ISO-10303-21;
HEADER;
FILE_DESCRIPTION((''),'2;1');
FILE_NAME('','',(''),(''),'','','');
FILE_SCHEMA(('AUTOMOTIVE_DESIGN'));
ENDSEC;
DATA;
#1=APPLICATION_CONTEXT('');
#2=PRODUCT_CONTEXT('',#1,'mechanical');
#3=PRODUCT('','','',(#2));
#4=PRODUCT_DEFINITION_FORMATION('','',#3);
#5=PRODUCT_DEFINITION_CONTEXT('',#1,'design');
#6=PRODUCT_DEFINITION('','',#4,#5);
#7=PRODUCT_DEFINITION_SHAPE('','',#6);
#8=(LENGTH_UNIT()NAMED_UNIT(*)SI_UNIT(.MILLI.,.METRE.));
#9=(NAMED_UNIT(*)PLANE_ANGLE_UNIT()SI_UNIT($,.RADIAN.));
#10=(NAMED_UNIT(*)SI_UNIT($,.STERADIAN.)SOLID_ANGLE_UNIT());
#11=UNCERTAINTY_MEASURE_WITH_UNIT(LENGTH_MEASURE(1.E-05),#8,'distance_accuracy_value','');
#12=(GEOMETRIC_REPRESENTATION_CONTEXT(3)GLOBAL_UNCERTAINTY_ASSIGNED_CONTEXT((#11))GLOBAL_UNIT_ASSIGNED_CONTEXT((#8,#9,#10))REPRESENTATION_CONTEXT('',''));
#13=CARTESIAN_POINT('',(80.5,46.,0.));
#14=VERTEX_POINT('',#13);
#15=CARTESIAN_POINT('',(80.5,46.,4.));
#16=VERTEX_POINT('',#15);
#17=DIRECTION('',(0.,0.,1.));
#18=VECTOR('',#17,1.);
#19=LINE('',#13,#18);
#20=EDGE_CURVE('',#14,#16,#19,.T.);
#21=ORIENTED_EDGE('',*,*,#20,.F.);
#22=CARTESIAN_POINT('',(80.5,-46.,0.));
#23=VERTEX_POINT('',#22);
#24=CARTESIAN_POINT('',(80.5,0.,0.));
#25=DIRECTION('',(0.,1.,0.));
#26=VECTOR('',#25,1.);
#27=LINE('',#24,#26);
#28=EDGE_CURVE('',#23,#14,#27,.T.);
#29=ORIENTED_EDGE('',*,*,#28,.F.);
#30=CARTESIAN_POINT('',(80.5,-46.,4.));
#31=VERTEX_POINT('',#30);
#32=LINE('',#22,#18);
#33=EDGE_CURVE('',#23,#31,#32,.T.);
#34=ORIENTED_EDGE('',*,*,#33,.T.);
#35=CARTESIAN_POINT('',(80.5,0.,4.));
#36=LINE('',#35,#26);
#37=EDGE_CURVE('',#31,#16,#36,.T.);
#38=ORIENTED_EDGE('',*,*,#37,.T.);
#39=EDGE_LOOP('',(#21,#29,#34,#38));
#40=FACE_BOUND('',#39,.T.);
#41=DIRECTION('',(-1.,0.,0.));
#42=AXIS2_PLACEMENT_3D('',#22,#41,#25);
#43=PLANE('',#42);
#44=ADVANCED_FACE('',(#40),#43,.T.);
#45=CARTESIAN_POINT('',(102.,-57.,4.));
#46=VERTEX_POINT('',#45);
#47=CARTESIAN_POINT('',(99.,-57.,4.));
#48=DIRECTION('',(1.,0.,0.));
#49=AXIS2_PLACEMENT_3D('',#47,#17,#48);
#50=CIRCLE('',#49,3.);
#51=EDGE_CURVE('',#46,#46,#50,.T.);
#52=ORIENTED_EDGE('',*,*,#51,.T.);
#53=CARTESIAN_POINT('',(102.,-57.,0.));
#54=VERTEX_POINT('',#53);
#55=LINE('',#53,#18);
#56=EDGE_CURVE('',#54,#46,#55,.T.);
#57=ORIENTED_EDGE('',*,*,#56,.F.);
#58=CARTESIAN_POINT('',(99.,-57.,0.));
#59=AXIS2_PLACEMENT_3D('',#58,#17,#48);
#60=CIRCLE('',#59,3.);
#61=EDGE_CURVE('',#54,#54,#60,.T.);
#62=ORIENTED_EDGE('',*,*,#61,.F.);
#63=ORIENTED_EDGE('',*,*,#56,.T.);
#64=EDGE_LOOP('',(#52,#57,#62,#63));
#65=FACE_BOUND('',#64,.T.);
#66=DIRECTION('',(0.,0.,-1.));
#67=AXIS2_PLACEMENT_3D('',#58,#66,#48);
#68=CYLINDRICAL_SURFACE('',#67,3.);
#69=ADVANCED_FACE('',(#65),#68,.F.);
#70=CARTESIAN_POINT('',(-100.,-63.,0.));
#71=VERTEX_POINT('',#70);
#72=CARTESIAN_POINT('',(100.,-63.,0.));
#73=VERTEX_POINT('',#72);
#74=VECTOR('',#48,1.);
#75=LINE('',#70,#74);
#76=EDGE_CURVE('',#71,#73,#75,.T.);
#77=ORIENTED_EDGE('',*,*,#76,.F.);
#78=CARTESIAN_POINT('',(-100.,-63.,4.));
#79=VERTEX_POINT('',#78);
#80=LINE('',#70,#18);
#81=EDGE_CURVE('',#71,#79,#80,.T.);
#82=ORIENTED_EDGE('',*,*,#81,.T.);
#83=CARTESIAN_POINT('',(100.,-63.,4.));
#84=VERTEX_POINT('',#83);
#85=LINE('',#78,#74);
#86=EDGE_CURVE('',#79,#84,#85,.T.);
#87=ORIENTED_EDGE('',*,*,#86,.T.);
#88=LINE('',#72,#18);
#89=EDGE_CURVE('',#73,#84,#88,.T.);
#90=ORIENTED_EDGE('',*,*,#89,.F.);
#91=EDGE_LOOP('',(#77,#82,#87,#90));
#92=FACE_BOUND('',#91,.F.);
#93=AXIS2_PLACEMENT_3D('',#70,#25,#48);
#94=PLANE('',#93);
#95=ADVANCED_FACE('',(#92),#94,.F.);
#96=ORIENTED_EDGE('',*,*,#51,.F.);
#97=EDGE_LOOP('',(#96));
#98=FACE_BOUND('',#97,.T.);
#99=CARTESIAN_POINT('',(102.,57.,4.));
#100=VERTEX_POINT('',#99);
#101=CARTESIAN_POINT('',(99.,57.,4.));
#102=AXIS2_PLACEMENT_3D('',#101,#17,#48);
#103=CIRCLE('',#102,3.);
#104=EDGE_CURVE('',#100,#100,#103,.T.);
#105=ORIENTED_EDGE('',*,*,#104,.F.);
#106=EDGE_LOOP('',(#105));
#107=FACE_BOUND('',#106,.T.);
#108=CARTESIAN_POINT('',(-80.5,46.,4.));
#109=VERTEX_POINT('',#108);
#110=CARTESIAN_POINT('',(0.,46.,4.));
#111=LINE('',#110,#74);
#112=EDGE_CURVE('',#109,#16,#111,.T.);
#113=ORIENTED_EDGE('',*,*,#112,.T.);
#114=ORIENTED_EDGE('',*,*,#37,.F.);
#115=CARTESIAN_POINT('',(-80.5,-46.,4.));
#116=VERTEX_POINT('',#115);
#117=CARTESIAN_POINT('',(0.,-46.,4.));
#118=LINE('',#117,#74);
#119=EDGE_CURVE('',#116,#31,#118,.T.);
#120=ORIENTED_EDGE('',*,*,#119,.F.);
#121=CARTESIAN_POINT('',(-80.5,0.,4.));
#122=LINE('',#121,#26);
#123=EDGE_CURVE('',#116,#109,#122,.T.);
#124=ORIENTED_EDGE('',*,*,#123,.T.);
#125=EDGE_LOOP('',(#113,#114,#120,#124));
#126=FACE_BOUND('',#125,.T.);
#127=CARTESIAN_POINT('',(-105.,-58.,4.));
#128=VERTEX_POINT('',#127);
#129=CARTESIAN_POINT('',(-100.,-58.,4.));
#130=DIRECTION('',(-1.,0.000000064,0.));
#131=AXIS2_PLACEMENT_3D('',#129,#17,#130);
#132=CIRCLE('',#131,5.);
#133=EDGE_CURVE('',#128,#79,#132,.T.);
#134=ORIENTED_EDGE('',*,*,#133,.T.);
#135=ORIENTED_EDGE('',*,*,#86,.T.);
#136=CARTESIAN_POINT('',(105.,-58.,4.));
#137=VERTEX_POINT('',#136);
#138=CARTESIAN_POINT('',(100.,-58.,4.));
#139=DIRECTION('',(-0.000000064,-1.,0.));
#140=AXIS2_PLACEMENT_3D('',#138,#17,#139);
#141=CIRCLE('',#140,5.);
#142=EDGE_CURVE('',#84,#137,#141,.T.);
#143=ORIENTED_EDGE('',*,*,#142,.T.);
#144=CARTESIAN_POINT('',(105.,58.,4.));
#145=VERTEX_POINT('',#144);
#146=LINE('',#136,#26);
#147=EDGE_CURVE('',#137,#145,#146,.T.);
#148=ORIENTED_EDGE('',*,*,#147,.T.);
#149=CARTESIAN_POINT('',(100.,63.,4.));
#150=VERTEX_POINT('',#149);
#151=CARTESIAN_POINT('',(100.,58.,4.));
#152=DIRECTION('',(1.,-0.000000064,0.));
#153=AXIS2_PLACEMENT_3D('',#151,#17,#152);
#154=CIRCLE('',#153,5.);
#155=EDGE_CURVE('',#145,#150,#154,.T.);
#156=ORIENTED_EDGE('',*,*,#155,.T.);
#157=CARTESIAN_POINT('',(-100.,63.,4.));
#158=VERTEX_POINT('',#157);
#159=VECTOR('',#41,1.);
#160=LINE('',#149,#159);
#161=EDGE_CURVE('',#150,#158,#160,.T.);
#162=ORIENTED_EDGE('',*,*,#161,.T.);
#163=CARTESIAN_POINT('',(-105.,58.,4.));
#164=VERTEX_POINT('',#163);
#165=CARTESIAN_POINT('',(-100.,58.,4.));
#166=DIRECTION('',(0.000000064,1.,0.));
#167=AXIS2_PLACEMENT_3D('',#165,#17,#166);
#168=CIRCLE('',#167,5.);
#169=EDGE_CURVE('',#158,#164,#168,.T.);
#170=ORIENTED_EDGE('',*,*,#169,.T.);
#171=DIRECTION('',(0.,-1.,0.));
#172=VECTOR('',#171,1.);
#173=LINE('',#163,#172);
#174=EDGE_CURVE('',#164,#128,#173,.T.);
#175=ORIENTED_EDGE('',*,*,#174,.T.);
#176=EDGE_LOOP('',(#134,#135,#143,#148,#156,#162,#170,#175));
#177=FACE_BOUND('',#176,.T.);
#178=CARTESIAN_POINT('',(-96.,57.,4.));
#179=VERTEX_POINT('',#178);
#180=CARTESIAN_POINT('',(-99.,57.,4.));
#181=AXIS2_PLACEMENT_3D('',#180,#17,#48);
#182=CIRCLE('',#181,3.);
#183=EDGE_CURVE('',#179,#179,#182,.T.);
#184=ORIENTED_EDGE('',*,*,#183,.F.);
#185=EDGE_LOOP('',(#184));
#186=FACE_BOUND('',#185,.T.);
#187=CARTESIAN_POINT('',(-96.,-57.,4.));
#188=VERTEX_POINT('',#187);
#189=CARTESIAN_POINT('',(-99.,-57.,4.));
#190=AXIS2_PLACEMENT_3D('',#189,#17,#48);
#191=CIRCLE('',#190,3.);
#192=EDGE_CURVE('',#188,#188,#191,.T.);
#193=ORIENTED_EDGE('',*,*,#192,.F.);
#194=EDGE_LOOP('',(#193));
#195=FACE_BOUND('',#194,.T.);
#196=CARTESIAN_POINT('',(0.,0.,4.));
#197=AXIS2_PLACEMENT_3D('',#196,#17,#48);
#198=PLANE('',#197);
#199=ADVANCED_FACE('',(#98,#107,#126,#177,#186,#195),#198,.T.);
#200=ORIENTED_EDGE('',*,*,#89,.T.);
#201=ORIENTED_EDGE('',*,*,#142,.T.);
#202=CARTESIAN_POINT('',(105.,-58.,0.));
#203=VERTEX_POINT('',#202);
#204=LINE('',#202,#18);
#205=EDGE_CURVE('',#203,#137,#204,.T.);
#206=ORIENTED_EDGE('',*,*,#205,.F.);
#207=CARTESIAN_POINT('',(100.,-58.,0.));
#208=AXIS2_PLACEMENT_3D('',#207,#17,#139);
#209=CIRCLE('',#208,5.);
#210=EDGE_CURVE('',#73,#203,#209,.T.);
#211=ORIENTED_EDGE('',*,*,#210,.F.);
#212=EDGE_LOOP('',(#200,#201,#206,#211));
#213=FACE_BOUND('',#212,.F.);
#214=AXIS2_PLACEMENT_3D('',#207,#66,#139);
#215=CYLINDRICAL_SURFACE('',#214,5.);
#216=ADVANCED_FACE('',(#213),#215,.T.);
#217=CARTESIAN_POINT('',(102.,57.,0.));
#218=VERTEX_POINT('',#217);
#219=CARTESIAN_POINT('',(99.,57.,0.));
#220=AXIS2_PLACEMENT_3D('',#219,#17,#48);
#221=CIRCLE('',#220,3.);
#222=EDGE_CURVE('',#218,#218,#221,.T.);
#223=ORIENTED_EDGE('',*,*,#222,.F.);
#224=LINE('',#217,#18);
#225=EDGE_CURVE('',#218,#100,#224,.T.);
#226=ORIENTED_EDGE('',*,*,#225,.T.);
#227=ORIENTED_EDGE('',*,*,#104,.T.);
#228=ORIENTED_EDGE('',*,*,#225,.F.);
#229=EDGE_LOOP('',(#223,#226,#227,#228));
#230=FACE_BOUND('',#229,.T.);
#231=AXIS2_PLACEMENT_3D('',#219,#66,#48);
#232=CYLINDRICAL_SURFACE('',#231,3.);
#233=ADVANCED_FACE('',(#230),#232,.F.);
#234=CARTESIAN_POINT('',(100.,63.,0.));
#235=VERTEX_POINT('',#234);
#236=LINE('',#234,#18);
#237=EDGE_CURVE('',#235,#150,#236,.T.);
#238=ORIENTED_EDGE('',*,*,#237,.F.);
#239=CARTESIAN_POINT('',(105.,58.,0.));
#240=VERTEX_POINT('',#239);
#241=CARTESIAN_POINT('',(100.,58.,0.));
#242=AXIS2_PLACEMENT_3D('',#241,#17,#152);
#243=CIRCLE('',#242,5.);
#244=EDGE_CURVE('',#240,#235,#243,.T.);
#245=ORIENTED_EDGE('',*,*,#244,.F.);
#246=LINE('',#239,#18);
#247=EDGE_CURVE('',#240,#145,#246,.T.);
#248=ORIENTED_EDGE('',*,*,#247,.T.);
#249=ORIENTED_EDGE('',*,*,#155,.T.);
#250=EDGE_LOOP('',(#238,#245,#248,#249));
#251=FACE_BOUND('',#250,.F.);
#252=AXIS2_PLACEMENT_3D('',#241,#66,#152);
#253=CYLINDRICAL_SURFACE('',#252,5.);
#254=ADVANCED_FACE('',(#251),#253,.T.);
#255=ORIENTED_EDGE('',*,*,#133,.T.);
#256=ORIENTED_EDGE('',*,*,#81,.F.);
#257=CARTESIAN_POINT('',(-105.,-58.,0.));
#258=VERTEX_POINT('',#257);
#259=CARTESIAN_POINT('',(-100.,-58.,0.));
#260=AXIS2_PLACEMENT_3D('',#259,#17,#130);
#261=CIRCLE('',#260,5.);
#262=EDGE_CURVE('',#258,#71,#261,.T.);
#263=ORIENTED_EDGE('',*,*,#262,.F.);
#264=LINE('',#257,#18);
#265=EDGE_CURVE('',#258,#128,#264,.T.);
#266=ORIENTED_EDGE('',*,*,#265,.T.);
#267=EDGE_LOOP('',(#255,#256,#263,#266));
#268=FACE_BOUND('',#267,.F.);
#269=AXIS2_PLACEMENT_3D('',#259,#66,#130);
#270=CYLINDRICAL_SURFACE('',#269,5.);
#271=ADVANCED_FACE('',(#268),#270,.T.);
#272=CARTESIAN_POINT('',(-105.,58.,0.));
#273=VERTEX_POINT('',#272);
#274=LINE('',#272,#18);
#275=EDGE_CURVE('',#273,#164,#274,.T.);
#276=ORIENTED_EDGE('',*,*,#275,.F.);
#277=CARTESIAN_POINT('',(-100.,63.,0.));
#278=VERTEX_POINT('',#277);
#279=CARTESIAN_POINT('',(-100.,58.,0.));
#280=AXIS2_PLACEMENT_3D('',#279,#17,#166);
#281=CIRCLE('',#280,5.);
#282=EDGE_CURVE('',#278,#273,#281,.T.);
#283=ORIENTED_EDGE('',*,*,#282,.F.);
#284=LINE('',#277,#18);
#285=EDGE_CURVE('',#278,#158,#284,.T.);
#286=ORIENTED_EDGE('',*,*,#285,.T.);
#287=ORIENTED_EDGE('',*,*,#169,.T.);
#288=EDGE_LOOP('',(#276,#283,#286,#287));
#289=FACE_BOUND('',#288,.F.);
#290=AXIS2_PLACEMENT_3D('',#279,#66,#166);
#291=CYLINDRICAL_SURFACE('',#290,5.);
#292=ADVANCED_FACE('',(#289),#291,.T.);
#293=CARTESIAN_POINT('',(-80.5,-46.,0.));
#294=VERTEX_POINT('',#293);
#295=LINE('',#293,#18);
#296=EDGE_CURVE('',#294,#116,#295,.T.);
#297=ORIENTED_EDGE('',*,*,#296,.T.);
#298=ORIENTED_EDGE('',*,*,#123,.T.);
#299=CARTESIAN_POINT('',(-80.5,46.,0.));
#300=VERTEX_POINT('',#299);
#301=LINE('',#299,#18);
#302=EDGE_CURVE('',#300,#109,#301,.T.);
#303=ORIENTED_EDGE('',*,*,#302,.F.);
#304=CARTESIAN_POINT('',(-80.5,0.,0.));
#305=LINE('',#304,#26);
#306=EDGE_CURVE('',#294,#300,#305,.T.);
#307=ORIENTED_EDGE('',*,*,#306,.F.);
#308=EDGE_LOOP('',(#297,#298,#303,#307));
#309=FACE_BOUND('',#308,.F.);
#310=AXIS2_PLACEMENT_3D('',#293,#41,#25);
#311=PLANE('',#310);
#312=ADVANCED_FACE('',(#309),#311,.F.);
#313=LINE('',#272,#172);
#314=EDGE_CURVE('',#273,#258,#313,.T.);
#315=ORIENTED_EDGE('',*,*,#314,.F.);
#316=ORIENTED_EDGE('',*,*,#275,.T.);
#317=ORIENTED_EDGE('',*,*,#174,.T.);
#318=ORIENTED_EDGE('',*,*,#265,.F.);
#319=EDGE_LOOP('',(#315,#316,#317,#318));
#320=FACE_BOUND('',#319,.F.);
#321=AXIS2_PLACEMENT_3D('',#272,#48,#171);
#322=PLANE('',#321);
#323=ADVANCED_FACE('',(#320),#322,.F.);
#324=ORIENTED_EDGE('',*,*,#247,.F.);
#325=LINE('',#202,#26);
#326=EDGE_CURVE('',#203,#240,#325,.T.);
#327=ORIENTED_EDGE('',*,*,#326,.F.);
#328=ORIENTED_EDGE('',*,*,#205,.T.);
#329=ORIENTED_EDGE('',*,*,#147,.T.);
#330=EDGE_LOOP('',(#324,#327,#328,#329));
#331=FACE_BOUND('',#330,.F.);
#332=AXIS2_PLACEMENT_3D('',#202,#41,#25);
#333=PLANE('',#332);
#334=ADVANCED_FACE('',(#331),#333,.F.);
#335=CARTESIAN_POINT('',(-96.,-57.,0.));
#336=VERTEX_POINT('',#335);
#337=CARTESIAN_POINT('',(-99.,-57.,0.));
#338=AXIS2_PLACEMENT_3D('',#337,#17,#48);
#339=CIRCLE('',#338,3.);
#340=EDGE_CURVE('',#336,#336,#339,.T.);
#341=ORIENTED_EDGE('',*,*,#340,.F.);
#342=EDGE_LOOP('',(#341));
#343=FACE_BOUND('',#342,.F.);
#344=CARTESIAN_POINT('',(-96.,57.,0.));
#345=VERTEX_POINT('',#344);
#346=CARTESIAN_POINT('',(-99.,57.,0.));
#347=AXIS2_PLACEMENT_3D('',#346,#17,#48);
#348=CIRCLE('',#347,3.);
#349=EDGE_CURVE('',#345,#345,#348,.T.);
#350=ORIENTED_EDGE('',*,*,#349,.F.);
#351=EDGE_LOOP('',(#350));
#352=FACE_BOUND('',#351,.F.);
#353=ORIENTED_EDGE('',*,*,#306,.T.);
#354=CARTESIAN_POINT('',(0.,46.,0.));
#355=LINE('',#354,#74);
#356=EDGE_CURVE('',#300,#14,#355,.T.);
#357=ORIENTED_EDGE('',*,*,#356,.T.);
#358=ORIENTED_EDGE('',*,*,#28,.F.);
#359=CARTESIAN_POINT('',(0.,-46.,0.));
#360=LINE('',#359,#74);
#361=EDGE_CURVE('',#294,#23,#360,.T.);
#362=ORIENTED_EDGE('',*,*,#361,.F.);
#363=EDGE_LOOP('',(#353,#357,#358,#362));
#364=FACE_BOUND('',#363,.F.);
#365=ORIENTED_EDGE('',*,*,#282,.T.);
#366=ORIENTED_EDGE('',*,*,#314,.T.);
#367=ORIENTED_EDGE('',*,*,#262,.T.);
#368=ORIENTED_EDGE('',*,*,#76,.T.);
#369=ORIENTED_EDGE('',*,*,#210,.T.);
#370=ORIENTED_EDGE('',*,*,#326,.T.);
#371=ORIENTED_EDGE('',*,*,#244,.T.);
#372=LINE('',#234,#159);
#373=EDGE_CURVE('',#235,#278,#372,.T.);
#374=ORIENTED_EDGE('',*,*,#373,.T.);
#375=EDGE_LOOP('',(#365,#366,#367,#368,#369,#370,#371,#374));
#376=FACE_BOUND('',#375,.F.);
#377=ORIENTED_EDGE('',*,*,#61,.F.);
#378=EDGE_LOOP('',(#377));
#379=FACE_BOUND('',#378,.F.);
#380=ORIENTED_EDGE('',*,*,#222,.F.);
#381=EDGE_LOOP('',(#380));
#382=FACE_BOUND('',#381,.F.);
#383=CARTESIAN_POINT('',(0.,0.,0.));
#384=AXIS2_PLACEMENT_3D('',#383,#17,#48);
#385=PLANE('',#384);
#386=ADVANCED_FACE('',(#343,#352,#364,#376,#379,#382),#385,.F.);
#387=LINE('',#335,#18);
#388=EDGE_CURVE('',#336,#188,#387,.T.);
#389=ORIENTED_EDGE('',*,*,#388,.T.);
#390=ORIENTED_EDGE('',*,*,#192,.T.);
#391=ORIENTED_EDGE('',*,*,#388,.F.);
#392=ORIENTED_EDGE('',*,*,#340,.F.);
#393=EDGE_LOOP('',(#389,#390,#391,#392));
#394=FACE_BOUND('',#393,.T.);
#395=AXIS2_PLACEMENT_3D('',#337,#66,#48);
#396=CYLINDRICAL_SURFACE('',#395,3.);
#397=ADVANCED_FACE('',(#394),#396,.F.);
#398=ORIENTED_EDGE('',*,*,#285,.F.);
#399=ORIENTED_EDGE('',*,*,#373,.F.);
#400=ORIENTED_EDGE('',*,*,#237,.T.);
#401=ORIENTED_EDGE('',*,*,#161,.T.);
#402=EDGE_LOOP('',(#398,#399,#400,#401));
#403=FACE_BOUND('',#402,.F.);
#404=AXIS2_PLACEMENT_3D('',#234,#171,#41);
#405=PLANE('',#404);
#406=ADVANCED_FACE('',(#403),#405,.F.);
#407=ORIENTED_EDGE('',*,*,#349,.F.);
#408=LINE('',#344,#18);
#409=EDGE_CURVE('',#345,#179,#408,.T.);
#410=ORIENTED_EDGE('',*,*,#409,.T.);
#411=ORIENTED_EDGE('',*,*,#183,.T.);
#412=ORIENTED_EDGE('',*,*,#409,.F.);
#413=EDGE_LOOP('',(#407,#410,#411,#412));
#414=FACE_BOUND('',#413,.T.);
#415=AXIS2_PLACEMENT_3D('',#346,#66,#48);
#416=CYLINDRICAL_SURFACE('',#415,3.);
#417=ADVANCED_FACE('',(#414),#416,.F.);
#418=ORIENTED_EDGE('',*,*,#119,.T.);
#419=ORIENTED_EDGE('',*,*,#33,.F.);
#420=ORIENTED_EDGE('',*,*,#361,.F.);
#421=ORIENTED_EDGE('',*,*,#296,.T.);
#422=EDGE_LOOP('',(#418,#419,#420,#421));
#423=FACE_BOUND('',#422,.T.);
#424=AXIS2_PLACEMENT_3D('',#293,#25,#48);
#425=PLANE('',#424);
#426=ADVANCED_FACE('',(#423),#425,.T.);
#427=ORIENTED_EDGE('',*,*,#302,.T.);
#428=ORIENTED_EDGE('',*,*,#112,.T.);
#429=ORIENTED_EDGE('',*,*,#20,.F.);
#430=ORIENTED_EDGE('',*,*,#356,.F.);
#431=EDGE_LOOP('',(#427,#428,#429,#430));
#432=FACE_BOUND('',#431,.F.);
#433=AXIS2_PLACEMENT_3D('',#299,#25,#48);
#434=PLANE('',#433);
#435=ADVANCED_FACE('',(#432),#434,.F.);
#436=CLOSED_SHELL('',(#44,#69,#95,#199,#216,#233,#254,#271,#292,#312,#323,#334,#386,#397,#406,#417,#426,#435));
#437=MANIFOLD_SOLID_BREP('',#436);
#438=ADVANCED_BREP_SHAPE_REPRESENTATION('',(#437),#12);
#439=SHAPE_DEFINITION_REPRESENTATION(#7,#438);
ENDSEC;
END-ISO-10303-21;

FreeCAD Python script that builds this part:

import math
import FreeCAD as App
import Part
import Sketcher
from FreeCAD import Vector
Q = App.Units.Quantity


def add_polygon(sketch, points):
    """Adds a closed chain of lines whose ends are joined by coincident constraints."""
    first, n = sketch.GeometryCount, len(points)
    for a, b in zip(points, points[1:] + points[:1]):
        sketch.addGeometry(Part.LineSegment(App.Vector(*a, 0), App.Vector(*b, 0)), False)
    for i in range(n):
        sketch.addConstraint(Sketcher.Constraint("Coincident", first + i, 2, first + (i + 1) % n, 1))

doc = App.newDocument("Part")
body = doc.addObject("PartDesign::Body", "Body")

# Sketch on XY plane
sketch1 = doc.addObject("Sketcher::SketchObject", "Sketch")
body.addObject(sketch1)
sketch1.AttachmentSupport = (doc.XY_Plane, [""])
sketch1.MapMode = "FlatFace"
sketch1.addGeometry(Part.ArcOfCircle(Part.Circle(Vector(100, 58, 0), Vector(0, 0, 1), 5), math.radians(0), math.radians(90)), False)  # 0
sketch1.addGeometry(Part.LineSegment(Vector(100, 63, 0), Vector(-100, 63, 0)), False)  # 1
sketch1.addGeometry(Part.ArcOfCircle(Part.Circle(Vector(-100, 58, 0), Vector(0, 0, 1), 5), math.radians(90), math.radians(180)), False)  # 2
sketch1.addGeometry(Part.LineSegment(Vector(-105, 58, 0), Vector(-105, -58, 0)), False)  # 3
sketch1.addGeometry(Part.ArcOfCircle(Part.Circle(Vector(-100, -58, 0), Vector(0, 0, 1), 5), math.radians(180), math.radians(270)), False)  # 4
sketch1.addGeometry(Part.LineSegment(Vector(-100, -63, 0), Vector(100, -63, 0)), False)  # 5
sketch1.addGeometry(Part.ArcOfCircle(Part.Circle(Vector(100, -58, 0), Vector(0, 0, 1), 5), math.radians(-90), math.radians(0)), False)  # 6
sketch1.addGeometry(Part.LineSegment(Vector(105, -58, 0), Vector(105, 58, 0)), False)  # 7
sketch1.addGeometry(Part.Circle(Vector(-99, -57, 0), Vector(0, 0, 1), 3), False)  # 8
sketch1.addGeometry(Part.Circle(Vector(99, -57, 0), Vector(0, 0, 1), 3), False)  # 9
sketch1.addGeometry(Part.Circle(Vector(-99, 57, 0), Vector(0, 0, 1), 3), False)  # 10
add_polygon(sketch1, [(80.5, -46), (-80.5, -46), (-80.5, 46), (80.5, 46)])  # lines 11-14
sketch1.addGeometry(Part.Circle(Vector(99, 57, 0), Vector(0, 0, 1), 3), False)  # 15
sketch1.addConstraint([
    Sketcher.Constraint("Tangent", 0, 2, 1, 1),
    Sketcher.Constraint("Tangent", 1, 2, 2, 1),
    Sketcher.Constraint("Tangent", 2, 2, 3, 1),
    Sketcher.Constraint("Tangent", 3, 2, 4, 1),
    Sketcher.Constraint("Tangent", 4, 2, 5, 1),
    Sketcher.Constraint("Tangent", 5, 2, 6, 1),
    Sketcher.Constraint("Tangent", 6, 2, 7, 1),
    Sketcher.Constraint("Tangent", 7, 2, 0, 1),
    Sketcher.Constraint("Horizontal", 1),
    Sketcher.Constraint("Vertical", 3),
    Sketcher.Constraint("Horizontal", 5),
    Sketcher.Constraint("Vertical", 7),
    Sketcher.Constraint("Horizontal", 11),
    Sketcher.Constraint("Vertical", 12),
    Sketcher.Constraint("Horizontal", 13),
    Sketcher.Constraint("Vertical", 14),
    Sketcher.Constraint("Equal", 0, 2),
    Sketcher.Constraint("Equal", 2, 4),
    Sketcher.Constraint("Equal", 4, 6),
    Sketcher.Constraint("Equal", 8, 9),
    Sketcher.Constraint("Equal", 9, 10),
    Sketcher.Constraint("Equal", 10, 15),
    Sketcher.Constraint("Symmetric", 0, 3, 4, 3, -1, 1),
    Sketcher.Constraint("Symmetric", 9, 3, 10, 3, -1, 1),
    Sketcher.Constraint("Symmetric", 8, 3, 15, 3, -1, 1),
    Sketcher.Constraint("Symmetric", 11, 2, 13, 2, -1, 1),
    Sketcher.Constraint("Symmetric", 8, 3, 9, 3, -2),
    Sketcher.Constraint("Diameter", 8, Q("6 mm")),
    Sketcher.Constraint("Radius", 0, Q("5 mm")),
    Sketcher.Constraint("DistanceX", 1, 2, 1, 1, Q("200 mm")),
    Sketcher.Constraint("DistanceX", 11, 2, 11, 1, Q("161 mm")),
    Sketcher.Constraint("DistanceY", 3, 2, 3, 1, Q("116 mm")),
    Sketcher.Constraint("DistanceY", 12, 1, 12, 2, Q("92 mm")),
    Sketcher.Constraint("DistanceX", 8, 3, -1, 1, Q("99 mm")),
    Sketcher.Constraint("DistanceY", 8, 3, -1, 1, Q("57 mm")),
])
pad1 = doc.addObject("PartDesign::Pad", "Pad")
body.addObject(pad1)
pad1.Profile = sketch1
pad1.Length = 4

doc.recompute()
